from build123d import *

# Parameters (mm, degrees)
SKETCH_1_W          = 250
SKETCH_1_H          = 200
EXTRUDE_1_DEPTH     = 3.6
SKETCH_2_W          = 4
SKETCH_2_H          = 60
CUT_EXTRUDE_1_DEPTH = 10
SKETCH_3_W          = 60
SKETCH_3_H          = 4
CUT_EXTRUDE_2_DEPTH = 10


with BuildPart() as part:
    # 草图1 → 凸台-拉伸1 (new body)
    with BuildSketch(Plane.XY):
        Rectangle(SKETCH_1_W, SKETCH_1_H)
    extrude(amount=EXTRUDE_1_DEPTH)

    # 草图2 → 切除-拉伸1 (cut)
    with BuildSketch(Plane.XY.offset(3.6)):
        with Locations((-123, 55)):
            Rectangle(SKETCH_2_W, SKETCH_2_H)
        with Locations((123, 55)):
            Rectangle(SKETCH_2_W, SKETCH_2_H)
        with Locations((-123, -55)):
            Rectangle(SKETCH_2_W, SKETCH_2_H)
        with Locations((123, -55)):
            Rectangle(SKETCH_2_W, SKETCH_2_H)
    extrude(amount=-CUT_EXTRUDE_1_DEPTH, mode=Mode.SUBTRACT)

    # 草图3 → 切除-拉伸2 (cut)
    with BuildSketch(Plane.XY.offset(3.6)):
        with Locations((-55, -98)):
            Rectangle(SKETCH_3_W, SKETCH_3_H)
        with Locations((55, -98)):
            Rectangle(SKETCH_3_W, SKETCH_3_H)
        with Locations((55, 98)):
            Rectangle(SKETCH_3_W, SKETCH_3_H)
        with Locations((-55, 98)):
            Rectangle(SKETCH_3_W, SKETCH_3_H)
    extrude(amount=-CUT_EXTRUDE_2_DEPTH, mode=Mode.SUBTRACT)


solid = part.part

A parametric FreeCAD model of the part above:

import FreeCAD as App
import Part
import Sketcher

V = App.Vector
Q = App.Units.Quantity


def add_polygon(sketch, points):
    """Adds a closed chain of lines whose ends are joined by coincident constraints."""
    first, n = sketch.GeometryCount, len(points)
    for a, b in zip(points, points[1:] + points[:1]):
        sketch.addGeometry(Part.LineSegment(App.Vector(*a, 0), App.Vector(*b, 0)), False)
    for i in range(n):
        sketch.addConstraint(Sketcher.Constraint("Coincident", first + i, 2, first + (i + 1) % n, 1))

doc = App.newDocument("Part")
body = doc.addObject("PartDesign::Body", "Body")

# Sketch on XY plane
sketch1 = doc.addObject("Sketcher::SketchObject", "Sketch")
body.addObject(sketch1)
sketch1.AttachmentSupport = (doc.XY_Plane, [""])
sketch1.MapMode = "FlatFace"
add_polygon(sketch1, [(-125, 100), (-125, -100), (125, -100), (125, 100)])  # lines 0-3
sketch1.addConstraint([
    Sketcher.Constraint("Vertical", 0),
    Sketcher.Constraint("Horizontal", 1),
    Sketcher.Constraint("Vertical", 2),
    Sketcher.Constraint("Horizontal", 3),
    Sketcher.Constraint("Symmetric", 0, 2, 2, 2, -1, 1),
    Sketcher.Constraint("DistanceX", 1, 1, 1, 2, Q("250 mm")),
    Sketcher.Constraint("DistanceY", 0, 2, 0, 1, Q("200 mm")),
])
pad1 = doc.addObject("PartDesign::Pad", "Pad")
body.addObject(pad1)
pad1.Profile = sketch1
pad1.Length = 3.6

# Sketch on XY plane
sketch2 = doc.addObject("Sketcher::SketchObject", "Sketch001")
body.addObject(sketch2)
sketch2.AttachmentSupport = (doc.XY_Plane, [""])
sketch2.MapMode = "FlatFace"
sketch2.AttachmentOffset = App.Placement(V(0, 0, 3.6), App.Rotation())
add_polygon(sketch2, [(-125, 85), (-125, 25), (-121, 25), (-121, 85)])  # lines 0-3
add_polygon(sketch2, [(121, 85), (121, 25), (125, 25), (125, 85)])  # lines 4-7
add_polygon(sketch2, [(-125, -25), (-125, -85), (-121, -85), (-121, -25)])  # lines 8-11
add_polygon(sketch2, [(121, -25), (121, -85), (125, -85), (125, -25)])  # lines 12-15
sketch2.addConstraint([
    Sketcher.Constraint("Vertical", 0),
    Sketcher.Constraint("Horizontal", 1),
    Sketcher.Constraint("Vertical", 2),
    Sketcher.Constraint("Horizontal", 3),
    Sketcher.Constraint("Vertical", 4),
    Sketcher.Constraint("Horizontal", 5),
    Sketcher.Constraint("Vertical", 6),
    Sketcher.Constraint("Horizontal", 7),
    Sketcher.Constraint("Vertical", 8),
    Sketcher.Constraint("Horizontal", 9),
    Sketcher.Constraint("Vertical", 10),
    Sketcher.Constraint("Horizontal", 11),
    Sketcher.Constraint("Vertical", 12),
    Sketcher.Constraint("Horizontal", 13),
    Sketcher.Constraint("Vertical", 14),
    Sketcher.Constraint("Horizontal", 15),
    Sketcher.Constraint("Symmetric", 6, 2, 8, 2, -1, 1),
    Sketcher.Constraint("Symmetric", 4, 2, 10, 2, -1, 1),
    Sketcher.Constraint("Symmetric", 2, 2, 12, 2, -1, 1),
    Sketcher.Constraint("Symmetric", 0, 2, 14, 2, -1, 1),
    Sketcher.Constraint("Symmetric", 1, 2, 4, 2, -2),
    Sketcher.Constraint("Symmetric", 3, 2, 6, 2, -2),
    Sketcher.Constraint("DistanceX", 1, 1, 1, 2, Q("4 mm")),
    Sketcher.Constraint("DistanceY", 0, 2, 0, 1, Q("60 mm")),
    Sketcher.Constraint("DistanceX", 0, 2, -1, 1, Q("125 mm")),
    Sketcher.Constraint("DistanceY", -1, 1, 0, 2, Q("25 mm")),
])
pocket1 = doc.addObject("PartDesign::Pocket", "Pocket")
body.addObject(pocket1)
pocket1.Profile = sketch2
pocket1.Length = 10

# Sketch on XY plane
sketch3 = doc.addObject("Sketcher::SketchObject", "Sketch002")
body.addObject(sketch3)
sketch3.AttachmentSupport = (doc.XY_Plane, [""])
sketch3.MapMode = "FlatFace"
sketch3.AttachmentOffset = App.Placement(V(0, 0, 3.6), App.Rotation())
add_polygon(sketch3, [(-85, -96), (-85, -100), (-25, -100), (-25, -96)])  # lines 0-3
add_polygon(sketch3, [(25, -96), (25, -100), (85, -100), (85, -96)])  # lines 4-7
add_polygon(sketch3, [(25, 100), (25, 96), (85, 96), (85, 100)])  # lines 8-11
add_polygon(sketch3, [(-85, 100), (-85, 96), (-25, 96), (-25, 100)])  # lines 12-15
sketch3.addConstraint([
    Sketcher.Constraint("Vertical", 0),
    Sketcher.Constraint("Horizontal", 1),
    Sketcher.Constraint("Vertical", 2),
    Sketcher.Constraint("Horizontal", 3),
    Sketcher.Constraint("Vertical", 4),
    Sketcher.Constraint("Horizontal", 5),
    Sketcher.Constraint("Vertical", 6),
    Sketcher.Constraint("Horizontal", 7),
    Sketcher.Constraint("Vertical", 8),
    Sketcher.Constraint("Horizontal", 9),
    Sketcher.Constraint("Vertical", 10),
    Sketcher.Constraint("Horizontal", 11),
    Sketcher.Constraint("Vertical", 12),
    Sketcher.Constraint("Horizontal", 13),
    Sketcher.Constraint("Vertical", 14),
    Sketcher.Constraint("Horizontal", 15),
    Sketcher.Constraint("Symmetric", 2, 2, 8, 2, -1, 1),
    Sketcher.Constraint("Symmetric", 0, 2, 10, 2, -1, 1),
    Sketcher.Constraint("Symmetric", 6, 2, 12, 2, -1, 1),
    Sketcher.Constraint("Symmetric", 4, 2, 14, 2, -1, 1),
    Sketcher.Constraint("Symmetric", 1, 2, 4, 2, -2),
    Sketcher.Constraint("Symmetric", 3, 2, 6, 2, -2),
    Sketcher.Constraint("DistanceX", 1, 1, 1, 2, Q("60 mm")),
    Sketcher.Constraint("DistanceY", 0, 2, 0, 1, Q("4 mm")),
    Sketcher.Constraint("DistanceX", 0, 2, -1, 1, Q("85 mm")),
    Sketcher.Constraint("DistanceY", 0, 2, -1, 1, Q("100 mm")),
])
pocket2 = doc.addObject("PartDesign::Pocket", "Pocket001")
body.addObject(pocket2)
pocket2.Profile = sketch3
pocket2.Length = 10

doc.recompute()
